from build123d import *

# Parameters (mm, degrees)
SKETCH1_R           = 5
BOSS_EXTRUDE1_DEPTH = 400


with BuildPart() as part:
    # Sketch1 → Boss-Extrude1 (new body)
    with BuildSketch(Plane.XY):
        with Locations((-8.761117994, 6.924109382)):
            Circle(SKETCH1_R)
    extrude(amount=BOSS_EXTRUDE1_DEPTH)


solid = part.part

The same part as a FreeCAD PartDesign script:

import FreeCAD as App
import Part
import Sketcher

V = App.Vector

doc = App.newDocument("Part")
params = doc.addObject("Spreadsheet::Sheet", "Params")
for row, (alias, value) in enumerate([
    ("sketch1_diameter", "10 mm"),
    ("pad1_length", "400 mm"),
], start=1):
    params.set(f"A{row}", alias)
    params.set(f"B{row}", "=" + value)
    params.setAlias(f"B{row}", alias)

body = doc.addObject("PartDesign::Body", "Body")

# Sketch on XY plane
sketch1 = doc.addObject("Sketcher::SketchObject", "Sketch")
body.addObject(sketch1)
sketch1.AttachmentSupport = (doc.XY_Plane, [""])
sketch1.MapMode = "FlatFace"
sketch1.addGeometry(Part.Circle(V(-9, 7, 0), V(0, 0, 1), 5), False)
sketch1.addConstraint([
    Sketcher.Constraint("Diameter", 0, 10.0),
    Sketcher.Constraint("DistanceY", -1, 1, 0, 3, 6.924109),
    Sketcher.Constraint("DistanceX", 0, 3, -1, 1, 8.761118),
])
sketch1.setExpression("Constraints[0]", "Params.sketch1_diameter")
pad1 = doc.addObject("PartDesign::Pad", "Pad")
body.addObject(pad1)
pad1.Profile = sketch1
pad1.setExpression("Length", "Params.pad1_length")

doc.recompute()
